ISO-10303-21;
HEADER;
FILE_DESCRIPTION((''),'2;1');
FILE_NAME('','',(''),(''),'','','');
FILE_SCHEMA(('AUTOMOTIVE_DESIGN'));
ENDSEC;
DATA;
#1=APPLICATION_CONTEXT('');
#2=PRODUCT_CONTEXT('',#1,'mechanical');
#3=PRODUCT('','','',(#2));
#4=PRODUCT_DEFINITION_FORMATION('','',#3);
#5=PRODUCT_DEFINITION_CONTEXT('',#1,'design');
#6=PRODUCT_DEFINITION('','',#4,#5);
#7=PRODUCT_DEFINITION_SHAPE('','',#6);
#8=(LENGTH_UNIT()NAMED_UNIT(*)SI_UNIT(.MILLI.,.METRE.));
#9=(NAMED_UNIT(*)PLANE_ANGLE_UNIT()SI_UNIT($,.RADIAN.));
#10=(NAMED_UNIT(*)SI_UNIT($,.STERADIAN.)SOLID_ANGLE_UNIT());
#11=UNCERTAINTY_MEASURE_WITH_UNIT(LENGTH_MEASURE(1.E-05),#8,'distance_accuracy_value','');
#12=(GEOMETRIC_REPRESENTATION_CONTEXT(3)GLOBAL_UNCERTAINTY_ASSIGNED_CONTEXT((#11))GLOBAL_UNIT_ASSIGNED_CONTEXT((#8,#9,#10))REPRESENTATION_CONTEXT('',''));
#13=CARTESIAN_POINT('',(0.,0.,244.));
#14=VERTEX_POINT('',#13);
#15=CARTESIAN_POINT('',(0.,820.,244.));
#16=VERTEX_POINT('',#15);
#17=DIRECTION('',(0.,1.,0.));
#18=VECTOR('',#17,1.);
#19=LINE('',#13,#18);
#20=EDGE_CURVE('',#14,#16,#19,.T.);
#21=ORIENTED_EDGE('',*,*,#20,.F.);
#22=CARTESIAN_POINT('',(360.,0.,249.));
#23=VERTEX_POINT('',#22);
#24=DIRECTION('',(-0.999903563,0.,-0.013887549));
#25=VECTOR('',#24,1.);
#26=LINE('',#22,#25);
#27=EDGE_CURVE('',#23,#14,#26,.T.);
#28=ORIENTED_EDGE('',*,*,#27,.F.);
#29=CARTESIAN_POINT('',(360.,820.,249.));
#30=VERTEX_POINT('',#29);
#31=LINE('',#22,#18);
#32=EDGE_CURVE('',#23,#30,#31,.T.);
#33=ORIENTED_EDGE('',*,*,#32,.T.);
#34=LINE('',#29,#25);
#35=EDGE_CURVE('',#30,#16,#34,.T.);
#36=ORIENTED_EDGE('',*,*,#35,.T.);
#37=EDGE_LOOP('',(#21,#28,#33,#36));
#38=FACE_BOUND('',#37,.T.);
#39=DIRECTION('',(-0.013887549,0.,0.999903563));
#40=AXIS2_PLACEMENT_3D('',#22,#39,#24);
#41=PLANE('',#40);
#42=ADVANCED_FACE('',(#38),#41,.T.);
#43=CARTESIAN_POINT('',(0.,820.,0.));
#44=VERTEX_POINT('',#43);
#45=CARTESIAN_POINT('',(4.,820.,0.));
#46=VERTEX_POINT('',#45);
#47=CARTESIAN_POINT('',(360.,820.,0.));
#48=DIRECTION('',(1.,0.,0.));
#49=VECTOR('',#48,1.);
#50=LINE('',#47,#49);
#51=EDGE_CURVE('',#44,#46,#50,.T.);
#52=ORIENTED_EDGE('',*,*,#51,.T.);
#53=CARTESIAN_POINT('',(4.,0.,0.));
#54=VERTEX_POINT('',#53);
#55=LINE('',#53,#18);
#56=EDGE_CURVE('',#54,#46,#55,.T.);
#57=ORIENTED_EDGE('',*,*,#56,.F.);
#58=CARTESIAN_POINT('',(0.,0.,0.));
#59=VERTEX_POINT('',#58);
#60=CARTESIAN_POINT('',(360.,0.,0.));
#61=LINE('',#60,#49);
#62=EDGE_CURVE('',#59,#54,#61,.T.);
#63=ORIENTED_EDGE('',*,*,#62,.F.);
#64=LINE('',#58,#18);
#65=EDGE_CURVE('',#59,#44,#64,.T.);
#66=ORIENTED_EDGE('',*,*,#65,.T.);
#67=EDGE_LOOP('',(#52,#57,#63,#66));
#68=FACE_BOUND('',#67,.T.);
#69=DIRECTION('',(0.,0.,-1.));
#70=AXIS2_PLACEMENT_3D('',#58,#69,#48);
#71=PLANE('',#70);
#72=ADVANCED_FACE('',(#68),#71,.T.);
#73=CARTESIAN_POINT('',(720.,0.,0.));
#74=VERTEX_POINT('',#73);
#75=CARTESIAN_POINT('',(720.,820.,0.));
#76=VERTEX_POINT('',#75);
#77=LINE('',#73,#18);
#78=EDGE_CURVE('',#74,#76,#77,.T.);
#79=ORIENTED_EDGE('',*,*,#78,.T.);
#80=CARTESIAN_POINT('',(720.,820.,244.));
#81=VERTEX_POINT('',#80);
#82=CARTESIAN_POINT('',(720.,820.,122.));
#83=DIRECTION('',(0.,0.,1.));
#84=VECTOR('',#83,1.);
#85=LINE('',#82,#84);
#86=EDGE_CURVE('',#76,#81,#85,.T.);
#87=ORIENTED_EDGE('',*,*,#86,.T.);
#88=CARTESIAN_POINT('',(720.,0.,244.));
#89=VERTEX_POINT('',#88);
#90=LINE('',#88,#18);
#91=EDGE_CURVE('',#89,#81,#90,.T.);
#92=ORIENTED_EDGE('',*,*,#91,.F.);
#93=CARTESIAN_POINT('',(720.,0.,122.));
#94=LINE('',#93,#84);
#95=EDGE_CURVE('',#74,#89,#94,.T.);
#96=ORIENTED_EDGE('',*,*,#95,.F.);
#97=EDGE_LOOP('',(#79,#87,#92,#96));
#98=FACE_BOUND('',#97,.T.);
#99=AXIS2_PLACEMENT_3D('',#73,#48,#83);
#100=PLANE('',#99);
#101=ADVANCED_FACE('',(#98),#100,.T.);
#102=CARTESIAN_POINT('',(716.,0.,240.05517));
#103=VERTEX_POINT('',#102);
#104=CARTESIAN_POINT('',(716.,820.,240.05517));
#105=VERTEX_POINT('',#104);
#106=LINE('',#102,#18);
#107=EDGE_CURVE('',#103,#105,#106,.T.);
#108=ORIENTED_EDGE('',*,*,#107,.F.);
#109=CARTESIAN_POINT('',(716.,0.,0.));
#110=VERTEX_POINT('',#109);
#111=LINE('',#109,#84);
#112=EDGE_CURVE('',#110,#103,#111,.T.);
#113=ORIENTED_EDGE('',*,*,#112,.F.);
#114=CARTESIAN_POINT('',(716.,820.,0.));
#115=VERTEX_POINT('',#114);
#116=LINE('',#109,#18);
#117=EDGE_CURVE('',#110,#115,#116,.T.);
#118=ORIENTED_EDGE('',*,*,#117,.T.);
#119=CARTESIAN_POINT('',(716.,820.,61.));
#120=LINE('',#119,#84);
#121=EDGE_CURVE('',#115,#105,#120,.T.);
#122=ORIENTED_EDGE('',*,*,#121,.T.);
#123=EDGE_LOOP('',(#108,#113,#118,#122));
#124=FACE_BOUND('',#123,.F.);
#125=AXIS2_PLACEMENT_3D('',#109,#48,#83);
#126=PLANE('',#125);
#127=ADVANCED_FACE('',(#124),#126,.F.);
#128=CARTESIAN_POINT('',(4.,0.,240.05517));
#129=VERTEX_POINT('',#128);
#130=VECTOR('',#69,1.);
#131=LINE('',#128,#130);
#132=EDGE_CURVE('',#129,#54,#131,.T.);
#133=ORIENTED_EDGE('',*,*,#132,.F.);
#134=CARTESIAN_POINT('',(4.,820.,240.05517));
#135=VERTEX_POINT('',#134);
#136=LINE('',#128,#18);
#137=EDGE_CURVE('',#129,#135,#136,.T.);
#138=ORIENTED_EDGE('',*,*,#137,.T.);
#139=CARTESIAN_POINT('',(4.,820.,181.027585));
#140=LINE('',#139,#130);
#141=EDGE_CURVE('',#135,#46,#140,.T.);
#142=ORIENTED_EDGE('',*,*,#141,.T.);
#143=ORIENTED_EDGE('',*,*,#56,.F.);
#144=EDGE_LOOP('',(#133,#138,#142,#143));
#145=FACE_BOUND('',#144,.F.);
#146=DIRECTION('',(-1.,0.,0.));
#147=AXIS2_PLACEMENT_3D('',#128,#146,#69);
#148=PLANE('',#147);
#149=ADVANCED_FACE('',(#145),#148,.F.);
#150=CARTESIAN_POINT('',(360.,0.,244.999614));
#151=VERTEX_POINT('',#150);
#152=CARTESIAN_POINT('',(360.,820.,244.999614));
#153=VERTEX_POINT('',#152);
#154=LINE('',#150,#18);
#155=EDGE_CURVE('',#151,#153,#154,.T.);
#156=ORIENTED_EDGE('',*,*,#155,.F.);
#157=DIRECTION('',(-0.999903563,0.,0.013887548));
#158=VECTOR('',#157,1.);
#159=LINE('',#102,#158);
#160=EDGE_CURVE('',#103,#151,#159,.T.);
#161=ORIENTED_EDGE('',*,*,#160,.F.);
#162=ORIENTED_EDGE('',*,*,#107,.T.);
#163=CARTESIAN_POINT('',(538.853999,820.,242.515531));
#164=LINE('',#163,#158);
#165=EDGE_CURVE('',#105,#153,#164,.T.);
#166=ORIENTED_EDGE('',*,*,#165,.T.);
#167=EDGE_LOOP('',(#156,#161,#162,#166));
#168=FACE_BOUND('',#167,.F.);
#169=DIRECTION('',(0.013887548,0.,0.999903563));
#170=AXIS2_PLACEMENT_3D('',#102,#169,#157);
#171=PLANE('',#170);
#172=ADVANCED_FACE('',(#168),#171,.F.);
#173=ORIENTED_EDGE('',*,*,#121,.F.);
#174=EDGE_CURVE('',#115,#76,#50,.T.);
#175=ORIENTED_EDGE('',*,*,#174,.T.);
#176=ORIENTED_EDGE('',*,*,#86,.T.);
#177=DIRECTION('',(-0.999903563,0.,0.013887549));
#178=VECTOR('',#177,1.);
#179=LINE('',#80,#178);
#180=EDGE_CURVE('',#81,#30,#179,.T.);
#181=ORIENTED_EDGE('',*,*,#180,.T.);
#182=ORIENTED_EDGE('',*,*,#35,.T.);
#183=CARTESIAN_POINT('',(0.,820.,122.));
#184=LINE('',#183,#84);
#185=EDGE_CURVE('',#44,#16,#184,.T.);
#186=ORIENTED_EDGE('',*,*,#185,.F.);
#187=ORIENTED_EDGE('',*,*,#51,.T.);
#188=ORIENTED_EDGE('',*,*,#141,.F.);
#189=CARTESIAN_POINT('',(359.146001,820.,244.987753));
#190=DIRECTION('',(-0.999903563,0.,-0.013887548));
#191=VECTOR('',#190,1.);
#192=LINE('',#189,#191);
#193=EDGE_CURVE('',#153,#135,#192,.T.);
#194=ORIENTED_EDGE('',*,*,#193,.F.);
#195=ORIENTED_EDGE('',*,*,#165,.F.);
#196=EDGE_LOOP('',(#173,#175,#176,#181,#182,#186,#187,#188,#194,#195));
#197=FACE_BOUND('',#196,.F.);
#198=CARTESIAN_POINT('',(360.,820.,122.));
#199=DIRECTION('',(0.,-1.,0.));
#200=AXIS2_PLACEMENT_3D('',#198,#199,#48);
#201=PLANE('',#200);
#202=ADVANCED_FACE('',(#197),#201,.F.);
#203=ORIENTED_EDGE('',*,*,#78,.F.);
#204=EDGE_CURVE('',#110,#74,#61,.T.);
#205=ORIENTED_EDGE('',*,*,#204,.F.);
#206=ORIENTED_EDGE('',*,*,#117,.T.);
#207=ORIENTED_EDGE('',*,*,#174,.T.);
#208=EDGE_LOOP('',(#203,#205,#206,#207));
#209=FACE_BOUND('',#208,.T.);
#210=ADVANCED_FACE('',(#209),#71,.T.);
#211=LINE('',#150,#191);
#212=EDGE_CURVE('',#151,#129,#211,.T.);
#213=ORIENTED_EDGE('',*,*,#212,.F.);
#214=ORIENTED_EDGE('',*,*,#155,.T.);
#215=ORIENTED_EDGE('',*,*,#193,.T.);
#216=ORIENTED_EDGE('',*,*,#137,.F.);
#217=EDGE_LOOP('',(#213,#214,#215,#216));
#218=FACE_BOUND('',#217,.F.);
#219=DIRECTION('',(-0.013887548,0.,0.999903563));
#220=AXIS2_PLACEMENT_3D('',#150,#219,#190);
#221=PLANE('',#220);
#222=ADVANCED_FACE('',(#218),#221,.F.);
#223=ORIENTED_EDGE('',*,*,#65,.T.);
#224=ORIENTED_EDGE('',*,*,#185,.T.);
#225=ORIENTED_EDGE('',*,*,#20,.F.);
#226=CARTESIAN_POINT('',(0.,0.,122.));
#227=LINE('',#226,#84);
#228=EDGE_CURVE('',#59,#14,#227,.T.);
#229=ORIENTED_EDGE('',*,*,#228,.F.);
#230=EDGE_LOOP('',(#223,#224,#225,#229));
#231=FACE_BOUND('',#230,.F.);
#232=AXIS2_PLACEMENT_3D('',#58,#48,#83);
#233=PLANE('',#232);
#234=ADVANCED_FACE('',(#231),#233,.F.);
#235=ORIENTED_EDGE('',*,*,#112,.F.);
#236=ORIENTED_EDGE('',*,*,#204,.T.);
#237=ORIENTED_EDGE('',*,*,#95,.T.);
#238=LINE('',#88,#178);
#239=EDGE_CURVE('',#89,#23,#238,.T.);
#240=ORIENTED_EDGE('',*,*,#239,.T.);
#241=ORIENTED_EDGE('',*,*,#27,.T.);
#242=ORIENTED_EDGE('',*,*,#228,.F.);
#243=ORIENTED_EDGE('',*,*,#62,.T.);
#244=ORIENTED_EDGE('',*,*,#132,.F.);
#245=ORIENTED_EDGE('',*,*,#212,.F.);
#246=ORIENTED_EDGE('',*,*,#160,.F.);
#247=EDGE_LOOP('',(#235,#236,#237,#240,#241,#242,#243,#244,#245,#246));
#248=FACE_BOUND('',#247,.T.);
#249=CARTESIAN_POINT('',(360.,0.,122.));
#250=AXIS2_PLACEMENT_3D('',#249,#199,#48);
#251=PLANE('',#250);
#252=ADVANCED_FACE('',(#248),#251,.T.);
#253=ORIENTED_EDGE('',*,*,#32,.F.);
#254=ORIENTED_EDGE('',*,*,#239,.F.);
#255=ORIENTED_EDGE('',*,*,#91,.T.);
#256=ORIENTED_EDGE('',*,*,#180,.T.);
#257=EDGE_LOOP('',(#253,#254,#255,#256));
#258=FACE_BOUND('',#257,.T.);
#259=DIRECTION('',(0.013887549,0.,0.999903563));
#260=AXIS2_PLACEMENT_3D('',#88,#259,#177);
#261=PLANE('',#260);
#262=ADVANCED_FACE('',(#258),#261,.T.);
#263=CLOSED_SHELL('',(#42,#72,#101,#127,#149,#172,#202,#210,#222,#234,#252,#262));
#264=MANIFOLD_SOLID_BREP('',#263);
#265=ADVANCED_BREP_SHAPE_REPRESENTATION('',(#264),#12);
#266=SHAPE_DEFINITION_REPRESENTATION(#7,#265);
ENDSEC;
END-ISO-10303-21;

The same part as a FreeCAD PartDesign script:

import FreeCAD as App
import Part
import Sketcher


def add_polygon(sketch, points):
    """Adds a closed chain of lines whose ends are joined by coincident constraints."""
    first, n = sketch.GeometryCount, len(points)
    for a, b in zip(points, points[1:] + points[:1]):
        sketch.addGeometry(Part.LineSegment(App.Vector(*a, 0), App.Vector(*b, 0)), False)
    for i in range(n):
        sketch.addConstraint(Sketcher.Constraint("Coincident", first + i, 2, first + (i + 1) % n, 1))

doc = App.newDocument("Part")
body = doc.addObject("PartDesign::Body", "Body")

# Sketch on XZ plane
sketch1 = doc.addObject("Sketcher::SketchObject", "Sketch")
body.addObject(sketch1)
sketch1.AttachmentSupport = (doc.XZ_Plane, [""])
sketch1.MapMode = "FlatFace"
add_polygon(sketch1, [(0, 244), (0, 0), (720, 0), (720, 244), (360, 249)])  # lines 0-4
sketch1.addConstraint([
    Sketcher.Constraint("Vertical", 0),
    Sketcher.Constraint("Horizontal", 1),
    Sketcher.Constraint("Vertical", 2),
    Sketcher.Constraint("Coincident", 0, 2, -1, 1),
    Sketcher.Constraint("Horizontal", 2, 2, 4, 2),
    Sketcher.Constraint("Equal", 3, 4),
    Sketcher.Constraint("DistanceX", 1, 1, 1, 2, 720.0),
    Sketcher.Constraint("DistanceY", 0, 2, 0, 1, 244.0),
    Sketcher.Constraint("DistanceY", -1, 1, 3, 2, 249.0),
])
pad1 = doc.addObject("PartDesign::Pad", "Pad")
body.addObject(pad1)
pad1.Profile = sketch1
pad1.Length = 820
pad1.Reversed = True

# Sketch on XZ plane
sketch2 = doc.addObject("Sketcher::SketchObject", "Sketch001")
body.addObject(sketch2)
sketch2.AttachmentSupport = (doc.XZ_Plane, [""])
sketch2.MapMode = "FlatFace"
add_polygon(sketch2, [(4, 240), (4, 0), (716, 0), (716, 240), (360, 245)])  # lines 0-4
sketch2.addConstraint([
    Sketcher.Constraint("Vertical", 0),
    Sketcher.Constraint("Horizontal", 1),
    Sketcher.Constraint("Vertical", 2),
    Sketcher.Constraint("PointOnObject", 0, 2, -1),
    Sketcher.Constraint("Horizontal", 2, 2, 4, 2),
    Sketcher.Constraint("Equal", 3, 4),
    Sketcher.Constraint("DistanceX", 1, 1, 1, 2, 712.0),
    Sketcher.Constraint("DistanceX", -1, 1, 0, 2, 4.0),
    Sketcher.Constraint("DistanceY", 0, 2, 0, 1, 240.05517),
    Sketcher.Constraint("Distance", 3, 356.034335),
])
pocket1 = doc.addObject("PartDesign::Pocket", "Pocket")
body.addObject(pocket1)
pocket1.Profile = sketch2
pocket1.Length = 830

doc.recompute()
